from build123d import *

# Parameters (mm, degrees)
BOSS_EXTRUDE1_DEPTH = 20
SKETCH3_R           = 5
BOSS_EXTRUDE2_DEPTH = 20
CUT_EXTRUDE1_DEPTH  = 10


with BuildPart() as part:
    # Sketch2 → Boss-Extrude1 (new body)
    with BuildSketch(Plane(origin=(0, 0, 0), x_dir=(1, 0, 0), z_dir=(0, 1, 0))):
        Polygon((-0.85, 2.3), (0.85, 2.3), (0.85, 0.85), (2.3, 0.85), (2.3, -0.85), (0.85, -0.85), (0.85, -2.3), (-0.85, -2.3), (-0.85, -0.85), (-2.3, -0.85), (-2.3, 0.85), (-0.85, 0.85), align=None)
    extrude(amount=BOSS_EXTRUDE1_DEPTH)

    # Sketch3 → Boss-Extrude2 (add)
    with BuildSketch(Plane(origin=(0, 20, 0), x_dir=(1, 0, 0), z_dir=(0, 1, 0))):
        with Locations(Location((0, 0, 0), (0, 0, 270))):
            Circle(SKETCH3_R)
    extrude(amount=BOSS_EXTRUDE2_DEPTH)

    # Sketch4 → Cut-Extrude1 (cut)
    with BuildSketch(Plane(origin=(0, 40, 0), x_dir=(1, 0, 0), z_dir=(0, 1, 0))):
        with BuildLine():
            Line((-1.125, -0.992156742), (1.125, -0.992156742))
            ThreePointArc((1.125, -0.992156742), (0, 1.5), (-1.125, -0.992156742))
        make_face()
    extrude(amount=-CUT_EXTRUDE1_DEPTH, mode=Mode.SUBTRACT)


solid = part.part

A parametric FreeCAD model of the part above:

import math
import FreeCAD as App
import Part
import Sketcher
from FreeCAD import Vector
Q = App.Units.Quantity


def add_polygon(sketch, points):
    """Adds a closed chain of lines whose ends are joined by coincident constraints."""
    first, n = sketch.GeometryCount, len(points)
    for a, b in zip(points, points[1:] + points[:1]):
        sketch.addGeometry(Part.LineSegment(App.Vector(*a, 0), App.Vector(*b, 0)), False)
    for i in range(n):
        sketch.addConstraint(Sketcher.Constraint("Coincident", first + i, 2, first + (i + 1) % n, 1))

doc = App.newDocument("Part")
body = doc.addObject("PartDesign::Body", "Body")

# Sketch on XZ plane
sketch1 = body.newObject("Sketcher::SketchObject", "Sketch")
sketch1.AttachmentSupport = (doc.getObject("XZ_Plane"), [""])
sketch1.MapMode = "FlatFace"
add_polygon(sketch1, [(0.8, -2.3), (-0.8, -2.3), (-0.8, -0.8), (-2.3, -0.8), (-2.3, 0.8), (-0.8, 0.8), (-0.8, 2.3), (0.8, 2.3), (0.8, 0.8), (2.3, 0.8), (2.3, -0.8), (0.8, -0.8)])  # lines 0-11
sketch1.addConstraint(Sketcher.Constraint("Horizontal", 0))
sketch1.addConstraint(Sketcher.Constraint("Vertical", 1))
sketch1.addConstraint(Sketcher.Constraint("Horizontal", 2))
sketch1.addConstraint(Sketcher.Constraint("Vertical", 3))
sketch1.addConstraint(Sketcher.Constraint("Horizontal", 4))
sketch1.addConstraint(Sketcher.Constraint("Vertical", 5))
sketch1.addConstraint(Sketcher.Constraint("Horizontal", 6))
sketch1.addConstraint(Sketcher.Constraint("Vertical", 7))
sketch1.addConstraint(Sketcher.Constraint("Horizontal", 8))
sketch1.addConstraint(Sketcher.Constraint("Vertical", 9))
sketch1.addConstraint(Sketcher.Constraint("Horizontal", 10))
sketch1.addConstraint(Sketcher.Constraint("Vertical", 11))
sketch1.addConstraint(Sketcher.Constraint("Symmetric", 0, 2, 6, 2, -1, 1))
sketch1.addConstraint(Sketcher.Constraint("Symmetric", 2, 2, 8, 2, -1, 1))
sketch1.addConstraint(Sketcher.Constraint("Symmetric", 4, 2, 10, 2, -1, 1))
sketch1.addConstraint(Sketcher.Constraint("Symmetric", 4, 2, 7, 2, -2))
sketch1.addConstraint(Sketcher.Constraint("Equal", 10, 1))
sketch1.addConstraint(Sketcher.Constraint("Equal", 6, 3))
sketch1.addConstraint(Sketcher.Constraint("DistanceX", 0, 2, 0, 1, Q("1.7 mm")))
sketch1.addConstraint(Sketcher.Constraint("DistanceX", 2, 2, 2, 1, Q("1.45 mm")))
pad1 = body.newObject("PartDesign::Pad", "Pad")
pad1.Profile = sketch1
pad1.Length = 20
pad1.Reversed = True

# Sketch on XZ plane
sketch2 = body.newObject("Sketcher::SketchObject", "Sketch001")
sketch2.AttachmentSupport = (doc.getObject("XZ_Plane"), [""])
sketch2.MapMode = "FlatFace"
sketch2.AttachmentOffset = App.Placement(Vector(0, 0, -20), App.Rotation())
sketch2.addGeometry(Part.Circle(Vector(0, 0, 0), Vector(0, 0, 1), 5), False)
sketch2.addConstraint(Sketcher.Constraint("Coincident", 0, 3, -1, 1))
sketch2.addConstraint(Sketcher.Constraint("Diameter", 0, Q("10 mm")))
pad2 = body.newObject("PartDesign::Pad", "Pad001")
pad2.Profile = sketch2
pad2.Length = 20
pad2.Reversed = True

# Sketch on XZ plane
sketch3 = body.newObject("Sketcher::SketchObject", "Sketch002")
sketch3.AttachmentSupport = (doc.getObject("XZ_Plane"), [""])
sketch3.MapMode = "FlatFace"
sketch3.AttachmentOffset = App.Placement(Vector(0, 0, -40), App.Rotation())
sketch3.addGeometry(Part.LineSegment(Vector(-1.1, 1, 0), Vector(1.1, 1, 0)), False)
sketch3.addGeometry(Part.ArcOfCircle(Part.Circle(Vector(0, 0, 0), Vector(0, 0, 1), 1.5), math.radians(139), math.radians(401)), False)
sketch3.addConstraint(Sketcher.Constraint("Coincident", 0, 1, 1, 1))
sketch3.addConstraint(Sketcher.Constraint("Coincident", 1, 2, 0, 2))
sketch3.addConstraint(Sketcher.Constraint("Horizontal", 0))
sketch3.addConstraint(Sketcher.Constraint("Coincident", 1, 3, -1, 1))
sketch3.addConstraint(Sketcher.Constraint("Radius", 1, Q("1.5 mm")))
sketch3.addConstraint(Sketcher.Constraint("DistanceX", 0, 1, 0, 2, Q("2.25 mm")))
pocket1 = body.newObject("PartDesign::Pocket", "Pocket")
pocket1.Profile = sketch3
pocket1.Length = 10
pocket1.Reversed = True

doc.recompute()
